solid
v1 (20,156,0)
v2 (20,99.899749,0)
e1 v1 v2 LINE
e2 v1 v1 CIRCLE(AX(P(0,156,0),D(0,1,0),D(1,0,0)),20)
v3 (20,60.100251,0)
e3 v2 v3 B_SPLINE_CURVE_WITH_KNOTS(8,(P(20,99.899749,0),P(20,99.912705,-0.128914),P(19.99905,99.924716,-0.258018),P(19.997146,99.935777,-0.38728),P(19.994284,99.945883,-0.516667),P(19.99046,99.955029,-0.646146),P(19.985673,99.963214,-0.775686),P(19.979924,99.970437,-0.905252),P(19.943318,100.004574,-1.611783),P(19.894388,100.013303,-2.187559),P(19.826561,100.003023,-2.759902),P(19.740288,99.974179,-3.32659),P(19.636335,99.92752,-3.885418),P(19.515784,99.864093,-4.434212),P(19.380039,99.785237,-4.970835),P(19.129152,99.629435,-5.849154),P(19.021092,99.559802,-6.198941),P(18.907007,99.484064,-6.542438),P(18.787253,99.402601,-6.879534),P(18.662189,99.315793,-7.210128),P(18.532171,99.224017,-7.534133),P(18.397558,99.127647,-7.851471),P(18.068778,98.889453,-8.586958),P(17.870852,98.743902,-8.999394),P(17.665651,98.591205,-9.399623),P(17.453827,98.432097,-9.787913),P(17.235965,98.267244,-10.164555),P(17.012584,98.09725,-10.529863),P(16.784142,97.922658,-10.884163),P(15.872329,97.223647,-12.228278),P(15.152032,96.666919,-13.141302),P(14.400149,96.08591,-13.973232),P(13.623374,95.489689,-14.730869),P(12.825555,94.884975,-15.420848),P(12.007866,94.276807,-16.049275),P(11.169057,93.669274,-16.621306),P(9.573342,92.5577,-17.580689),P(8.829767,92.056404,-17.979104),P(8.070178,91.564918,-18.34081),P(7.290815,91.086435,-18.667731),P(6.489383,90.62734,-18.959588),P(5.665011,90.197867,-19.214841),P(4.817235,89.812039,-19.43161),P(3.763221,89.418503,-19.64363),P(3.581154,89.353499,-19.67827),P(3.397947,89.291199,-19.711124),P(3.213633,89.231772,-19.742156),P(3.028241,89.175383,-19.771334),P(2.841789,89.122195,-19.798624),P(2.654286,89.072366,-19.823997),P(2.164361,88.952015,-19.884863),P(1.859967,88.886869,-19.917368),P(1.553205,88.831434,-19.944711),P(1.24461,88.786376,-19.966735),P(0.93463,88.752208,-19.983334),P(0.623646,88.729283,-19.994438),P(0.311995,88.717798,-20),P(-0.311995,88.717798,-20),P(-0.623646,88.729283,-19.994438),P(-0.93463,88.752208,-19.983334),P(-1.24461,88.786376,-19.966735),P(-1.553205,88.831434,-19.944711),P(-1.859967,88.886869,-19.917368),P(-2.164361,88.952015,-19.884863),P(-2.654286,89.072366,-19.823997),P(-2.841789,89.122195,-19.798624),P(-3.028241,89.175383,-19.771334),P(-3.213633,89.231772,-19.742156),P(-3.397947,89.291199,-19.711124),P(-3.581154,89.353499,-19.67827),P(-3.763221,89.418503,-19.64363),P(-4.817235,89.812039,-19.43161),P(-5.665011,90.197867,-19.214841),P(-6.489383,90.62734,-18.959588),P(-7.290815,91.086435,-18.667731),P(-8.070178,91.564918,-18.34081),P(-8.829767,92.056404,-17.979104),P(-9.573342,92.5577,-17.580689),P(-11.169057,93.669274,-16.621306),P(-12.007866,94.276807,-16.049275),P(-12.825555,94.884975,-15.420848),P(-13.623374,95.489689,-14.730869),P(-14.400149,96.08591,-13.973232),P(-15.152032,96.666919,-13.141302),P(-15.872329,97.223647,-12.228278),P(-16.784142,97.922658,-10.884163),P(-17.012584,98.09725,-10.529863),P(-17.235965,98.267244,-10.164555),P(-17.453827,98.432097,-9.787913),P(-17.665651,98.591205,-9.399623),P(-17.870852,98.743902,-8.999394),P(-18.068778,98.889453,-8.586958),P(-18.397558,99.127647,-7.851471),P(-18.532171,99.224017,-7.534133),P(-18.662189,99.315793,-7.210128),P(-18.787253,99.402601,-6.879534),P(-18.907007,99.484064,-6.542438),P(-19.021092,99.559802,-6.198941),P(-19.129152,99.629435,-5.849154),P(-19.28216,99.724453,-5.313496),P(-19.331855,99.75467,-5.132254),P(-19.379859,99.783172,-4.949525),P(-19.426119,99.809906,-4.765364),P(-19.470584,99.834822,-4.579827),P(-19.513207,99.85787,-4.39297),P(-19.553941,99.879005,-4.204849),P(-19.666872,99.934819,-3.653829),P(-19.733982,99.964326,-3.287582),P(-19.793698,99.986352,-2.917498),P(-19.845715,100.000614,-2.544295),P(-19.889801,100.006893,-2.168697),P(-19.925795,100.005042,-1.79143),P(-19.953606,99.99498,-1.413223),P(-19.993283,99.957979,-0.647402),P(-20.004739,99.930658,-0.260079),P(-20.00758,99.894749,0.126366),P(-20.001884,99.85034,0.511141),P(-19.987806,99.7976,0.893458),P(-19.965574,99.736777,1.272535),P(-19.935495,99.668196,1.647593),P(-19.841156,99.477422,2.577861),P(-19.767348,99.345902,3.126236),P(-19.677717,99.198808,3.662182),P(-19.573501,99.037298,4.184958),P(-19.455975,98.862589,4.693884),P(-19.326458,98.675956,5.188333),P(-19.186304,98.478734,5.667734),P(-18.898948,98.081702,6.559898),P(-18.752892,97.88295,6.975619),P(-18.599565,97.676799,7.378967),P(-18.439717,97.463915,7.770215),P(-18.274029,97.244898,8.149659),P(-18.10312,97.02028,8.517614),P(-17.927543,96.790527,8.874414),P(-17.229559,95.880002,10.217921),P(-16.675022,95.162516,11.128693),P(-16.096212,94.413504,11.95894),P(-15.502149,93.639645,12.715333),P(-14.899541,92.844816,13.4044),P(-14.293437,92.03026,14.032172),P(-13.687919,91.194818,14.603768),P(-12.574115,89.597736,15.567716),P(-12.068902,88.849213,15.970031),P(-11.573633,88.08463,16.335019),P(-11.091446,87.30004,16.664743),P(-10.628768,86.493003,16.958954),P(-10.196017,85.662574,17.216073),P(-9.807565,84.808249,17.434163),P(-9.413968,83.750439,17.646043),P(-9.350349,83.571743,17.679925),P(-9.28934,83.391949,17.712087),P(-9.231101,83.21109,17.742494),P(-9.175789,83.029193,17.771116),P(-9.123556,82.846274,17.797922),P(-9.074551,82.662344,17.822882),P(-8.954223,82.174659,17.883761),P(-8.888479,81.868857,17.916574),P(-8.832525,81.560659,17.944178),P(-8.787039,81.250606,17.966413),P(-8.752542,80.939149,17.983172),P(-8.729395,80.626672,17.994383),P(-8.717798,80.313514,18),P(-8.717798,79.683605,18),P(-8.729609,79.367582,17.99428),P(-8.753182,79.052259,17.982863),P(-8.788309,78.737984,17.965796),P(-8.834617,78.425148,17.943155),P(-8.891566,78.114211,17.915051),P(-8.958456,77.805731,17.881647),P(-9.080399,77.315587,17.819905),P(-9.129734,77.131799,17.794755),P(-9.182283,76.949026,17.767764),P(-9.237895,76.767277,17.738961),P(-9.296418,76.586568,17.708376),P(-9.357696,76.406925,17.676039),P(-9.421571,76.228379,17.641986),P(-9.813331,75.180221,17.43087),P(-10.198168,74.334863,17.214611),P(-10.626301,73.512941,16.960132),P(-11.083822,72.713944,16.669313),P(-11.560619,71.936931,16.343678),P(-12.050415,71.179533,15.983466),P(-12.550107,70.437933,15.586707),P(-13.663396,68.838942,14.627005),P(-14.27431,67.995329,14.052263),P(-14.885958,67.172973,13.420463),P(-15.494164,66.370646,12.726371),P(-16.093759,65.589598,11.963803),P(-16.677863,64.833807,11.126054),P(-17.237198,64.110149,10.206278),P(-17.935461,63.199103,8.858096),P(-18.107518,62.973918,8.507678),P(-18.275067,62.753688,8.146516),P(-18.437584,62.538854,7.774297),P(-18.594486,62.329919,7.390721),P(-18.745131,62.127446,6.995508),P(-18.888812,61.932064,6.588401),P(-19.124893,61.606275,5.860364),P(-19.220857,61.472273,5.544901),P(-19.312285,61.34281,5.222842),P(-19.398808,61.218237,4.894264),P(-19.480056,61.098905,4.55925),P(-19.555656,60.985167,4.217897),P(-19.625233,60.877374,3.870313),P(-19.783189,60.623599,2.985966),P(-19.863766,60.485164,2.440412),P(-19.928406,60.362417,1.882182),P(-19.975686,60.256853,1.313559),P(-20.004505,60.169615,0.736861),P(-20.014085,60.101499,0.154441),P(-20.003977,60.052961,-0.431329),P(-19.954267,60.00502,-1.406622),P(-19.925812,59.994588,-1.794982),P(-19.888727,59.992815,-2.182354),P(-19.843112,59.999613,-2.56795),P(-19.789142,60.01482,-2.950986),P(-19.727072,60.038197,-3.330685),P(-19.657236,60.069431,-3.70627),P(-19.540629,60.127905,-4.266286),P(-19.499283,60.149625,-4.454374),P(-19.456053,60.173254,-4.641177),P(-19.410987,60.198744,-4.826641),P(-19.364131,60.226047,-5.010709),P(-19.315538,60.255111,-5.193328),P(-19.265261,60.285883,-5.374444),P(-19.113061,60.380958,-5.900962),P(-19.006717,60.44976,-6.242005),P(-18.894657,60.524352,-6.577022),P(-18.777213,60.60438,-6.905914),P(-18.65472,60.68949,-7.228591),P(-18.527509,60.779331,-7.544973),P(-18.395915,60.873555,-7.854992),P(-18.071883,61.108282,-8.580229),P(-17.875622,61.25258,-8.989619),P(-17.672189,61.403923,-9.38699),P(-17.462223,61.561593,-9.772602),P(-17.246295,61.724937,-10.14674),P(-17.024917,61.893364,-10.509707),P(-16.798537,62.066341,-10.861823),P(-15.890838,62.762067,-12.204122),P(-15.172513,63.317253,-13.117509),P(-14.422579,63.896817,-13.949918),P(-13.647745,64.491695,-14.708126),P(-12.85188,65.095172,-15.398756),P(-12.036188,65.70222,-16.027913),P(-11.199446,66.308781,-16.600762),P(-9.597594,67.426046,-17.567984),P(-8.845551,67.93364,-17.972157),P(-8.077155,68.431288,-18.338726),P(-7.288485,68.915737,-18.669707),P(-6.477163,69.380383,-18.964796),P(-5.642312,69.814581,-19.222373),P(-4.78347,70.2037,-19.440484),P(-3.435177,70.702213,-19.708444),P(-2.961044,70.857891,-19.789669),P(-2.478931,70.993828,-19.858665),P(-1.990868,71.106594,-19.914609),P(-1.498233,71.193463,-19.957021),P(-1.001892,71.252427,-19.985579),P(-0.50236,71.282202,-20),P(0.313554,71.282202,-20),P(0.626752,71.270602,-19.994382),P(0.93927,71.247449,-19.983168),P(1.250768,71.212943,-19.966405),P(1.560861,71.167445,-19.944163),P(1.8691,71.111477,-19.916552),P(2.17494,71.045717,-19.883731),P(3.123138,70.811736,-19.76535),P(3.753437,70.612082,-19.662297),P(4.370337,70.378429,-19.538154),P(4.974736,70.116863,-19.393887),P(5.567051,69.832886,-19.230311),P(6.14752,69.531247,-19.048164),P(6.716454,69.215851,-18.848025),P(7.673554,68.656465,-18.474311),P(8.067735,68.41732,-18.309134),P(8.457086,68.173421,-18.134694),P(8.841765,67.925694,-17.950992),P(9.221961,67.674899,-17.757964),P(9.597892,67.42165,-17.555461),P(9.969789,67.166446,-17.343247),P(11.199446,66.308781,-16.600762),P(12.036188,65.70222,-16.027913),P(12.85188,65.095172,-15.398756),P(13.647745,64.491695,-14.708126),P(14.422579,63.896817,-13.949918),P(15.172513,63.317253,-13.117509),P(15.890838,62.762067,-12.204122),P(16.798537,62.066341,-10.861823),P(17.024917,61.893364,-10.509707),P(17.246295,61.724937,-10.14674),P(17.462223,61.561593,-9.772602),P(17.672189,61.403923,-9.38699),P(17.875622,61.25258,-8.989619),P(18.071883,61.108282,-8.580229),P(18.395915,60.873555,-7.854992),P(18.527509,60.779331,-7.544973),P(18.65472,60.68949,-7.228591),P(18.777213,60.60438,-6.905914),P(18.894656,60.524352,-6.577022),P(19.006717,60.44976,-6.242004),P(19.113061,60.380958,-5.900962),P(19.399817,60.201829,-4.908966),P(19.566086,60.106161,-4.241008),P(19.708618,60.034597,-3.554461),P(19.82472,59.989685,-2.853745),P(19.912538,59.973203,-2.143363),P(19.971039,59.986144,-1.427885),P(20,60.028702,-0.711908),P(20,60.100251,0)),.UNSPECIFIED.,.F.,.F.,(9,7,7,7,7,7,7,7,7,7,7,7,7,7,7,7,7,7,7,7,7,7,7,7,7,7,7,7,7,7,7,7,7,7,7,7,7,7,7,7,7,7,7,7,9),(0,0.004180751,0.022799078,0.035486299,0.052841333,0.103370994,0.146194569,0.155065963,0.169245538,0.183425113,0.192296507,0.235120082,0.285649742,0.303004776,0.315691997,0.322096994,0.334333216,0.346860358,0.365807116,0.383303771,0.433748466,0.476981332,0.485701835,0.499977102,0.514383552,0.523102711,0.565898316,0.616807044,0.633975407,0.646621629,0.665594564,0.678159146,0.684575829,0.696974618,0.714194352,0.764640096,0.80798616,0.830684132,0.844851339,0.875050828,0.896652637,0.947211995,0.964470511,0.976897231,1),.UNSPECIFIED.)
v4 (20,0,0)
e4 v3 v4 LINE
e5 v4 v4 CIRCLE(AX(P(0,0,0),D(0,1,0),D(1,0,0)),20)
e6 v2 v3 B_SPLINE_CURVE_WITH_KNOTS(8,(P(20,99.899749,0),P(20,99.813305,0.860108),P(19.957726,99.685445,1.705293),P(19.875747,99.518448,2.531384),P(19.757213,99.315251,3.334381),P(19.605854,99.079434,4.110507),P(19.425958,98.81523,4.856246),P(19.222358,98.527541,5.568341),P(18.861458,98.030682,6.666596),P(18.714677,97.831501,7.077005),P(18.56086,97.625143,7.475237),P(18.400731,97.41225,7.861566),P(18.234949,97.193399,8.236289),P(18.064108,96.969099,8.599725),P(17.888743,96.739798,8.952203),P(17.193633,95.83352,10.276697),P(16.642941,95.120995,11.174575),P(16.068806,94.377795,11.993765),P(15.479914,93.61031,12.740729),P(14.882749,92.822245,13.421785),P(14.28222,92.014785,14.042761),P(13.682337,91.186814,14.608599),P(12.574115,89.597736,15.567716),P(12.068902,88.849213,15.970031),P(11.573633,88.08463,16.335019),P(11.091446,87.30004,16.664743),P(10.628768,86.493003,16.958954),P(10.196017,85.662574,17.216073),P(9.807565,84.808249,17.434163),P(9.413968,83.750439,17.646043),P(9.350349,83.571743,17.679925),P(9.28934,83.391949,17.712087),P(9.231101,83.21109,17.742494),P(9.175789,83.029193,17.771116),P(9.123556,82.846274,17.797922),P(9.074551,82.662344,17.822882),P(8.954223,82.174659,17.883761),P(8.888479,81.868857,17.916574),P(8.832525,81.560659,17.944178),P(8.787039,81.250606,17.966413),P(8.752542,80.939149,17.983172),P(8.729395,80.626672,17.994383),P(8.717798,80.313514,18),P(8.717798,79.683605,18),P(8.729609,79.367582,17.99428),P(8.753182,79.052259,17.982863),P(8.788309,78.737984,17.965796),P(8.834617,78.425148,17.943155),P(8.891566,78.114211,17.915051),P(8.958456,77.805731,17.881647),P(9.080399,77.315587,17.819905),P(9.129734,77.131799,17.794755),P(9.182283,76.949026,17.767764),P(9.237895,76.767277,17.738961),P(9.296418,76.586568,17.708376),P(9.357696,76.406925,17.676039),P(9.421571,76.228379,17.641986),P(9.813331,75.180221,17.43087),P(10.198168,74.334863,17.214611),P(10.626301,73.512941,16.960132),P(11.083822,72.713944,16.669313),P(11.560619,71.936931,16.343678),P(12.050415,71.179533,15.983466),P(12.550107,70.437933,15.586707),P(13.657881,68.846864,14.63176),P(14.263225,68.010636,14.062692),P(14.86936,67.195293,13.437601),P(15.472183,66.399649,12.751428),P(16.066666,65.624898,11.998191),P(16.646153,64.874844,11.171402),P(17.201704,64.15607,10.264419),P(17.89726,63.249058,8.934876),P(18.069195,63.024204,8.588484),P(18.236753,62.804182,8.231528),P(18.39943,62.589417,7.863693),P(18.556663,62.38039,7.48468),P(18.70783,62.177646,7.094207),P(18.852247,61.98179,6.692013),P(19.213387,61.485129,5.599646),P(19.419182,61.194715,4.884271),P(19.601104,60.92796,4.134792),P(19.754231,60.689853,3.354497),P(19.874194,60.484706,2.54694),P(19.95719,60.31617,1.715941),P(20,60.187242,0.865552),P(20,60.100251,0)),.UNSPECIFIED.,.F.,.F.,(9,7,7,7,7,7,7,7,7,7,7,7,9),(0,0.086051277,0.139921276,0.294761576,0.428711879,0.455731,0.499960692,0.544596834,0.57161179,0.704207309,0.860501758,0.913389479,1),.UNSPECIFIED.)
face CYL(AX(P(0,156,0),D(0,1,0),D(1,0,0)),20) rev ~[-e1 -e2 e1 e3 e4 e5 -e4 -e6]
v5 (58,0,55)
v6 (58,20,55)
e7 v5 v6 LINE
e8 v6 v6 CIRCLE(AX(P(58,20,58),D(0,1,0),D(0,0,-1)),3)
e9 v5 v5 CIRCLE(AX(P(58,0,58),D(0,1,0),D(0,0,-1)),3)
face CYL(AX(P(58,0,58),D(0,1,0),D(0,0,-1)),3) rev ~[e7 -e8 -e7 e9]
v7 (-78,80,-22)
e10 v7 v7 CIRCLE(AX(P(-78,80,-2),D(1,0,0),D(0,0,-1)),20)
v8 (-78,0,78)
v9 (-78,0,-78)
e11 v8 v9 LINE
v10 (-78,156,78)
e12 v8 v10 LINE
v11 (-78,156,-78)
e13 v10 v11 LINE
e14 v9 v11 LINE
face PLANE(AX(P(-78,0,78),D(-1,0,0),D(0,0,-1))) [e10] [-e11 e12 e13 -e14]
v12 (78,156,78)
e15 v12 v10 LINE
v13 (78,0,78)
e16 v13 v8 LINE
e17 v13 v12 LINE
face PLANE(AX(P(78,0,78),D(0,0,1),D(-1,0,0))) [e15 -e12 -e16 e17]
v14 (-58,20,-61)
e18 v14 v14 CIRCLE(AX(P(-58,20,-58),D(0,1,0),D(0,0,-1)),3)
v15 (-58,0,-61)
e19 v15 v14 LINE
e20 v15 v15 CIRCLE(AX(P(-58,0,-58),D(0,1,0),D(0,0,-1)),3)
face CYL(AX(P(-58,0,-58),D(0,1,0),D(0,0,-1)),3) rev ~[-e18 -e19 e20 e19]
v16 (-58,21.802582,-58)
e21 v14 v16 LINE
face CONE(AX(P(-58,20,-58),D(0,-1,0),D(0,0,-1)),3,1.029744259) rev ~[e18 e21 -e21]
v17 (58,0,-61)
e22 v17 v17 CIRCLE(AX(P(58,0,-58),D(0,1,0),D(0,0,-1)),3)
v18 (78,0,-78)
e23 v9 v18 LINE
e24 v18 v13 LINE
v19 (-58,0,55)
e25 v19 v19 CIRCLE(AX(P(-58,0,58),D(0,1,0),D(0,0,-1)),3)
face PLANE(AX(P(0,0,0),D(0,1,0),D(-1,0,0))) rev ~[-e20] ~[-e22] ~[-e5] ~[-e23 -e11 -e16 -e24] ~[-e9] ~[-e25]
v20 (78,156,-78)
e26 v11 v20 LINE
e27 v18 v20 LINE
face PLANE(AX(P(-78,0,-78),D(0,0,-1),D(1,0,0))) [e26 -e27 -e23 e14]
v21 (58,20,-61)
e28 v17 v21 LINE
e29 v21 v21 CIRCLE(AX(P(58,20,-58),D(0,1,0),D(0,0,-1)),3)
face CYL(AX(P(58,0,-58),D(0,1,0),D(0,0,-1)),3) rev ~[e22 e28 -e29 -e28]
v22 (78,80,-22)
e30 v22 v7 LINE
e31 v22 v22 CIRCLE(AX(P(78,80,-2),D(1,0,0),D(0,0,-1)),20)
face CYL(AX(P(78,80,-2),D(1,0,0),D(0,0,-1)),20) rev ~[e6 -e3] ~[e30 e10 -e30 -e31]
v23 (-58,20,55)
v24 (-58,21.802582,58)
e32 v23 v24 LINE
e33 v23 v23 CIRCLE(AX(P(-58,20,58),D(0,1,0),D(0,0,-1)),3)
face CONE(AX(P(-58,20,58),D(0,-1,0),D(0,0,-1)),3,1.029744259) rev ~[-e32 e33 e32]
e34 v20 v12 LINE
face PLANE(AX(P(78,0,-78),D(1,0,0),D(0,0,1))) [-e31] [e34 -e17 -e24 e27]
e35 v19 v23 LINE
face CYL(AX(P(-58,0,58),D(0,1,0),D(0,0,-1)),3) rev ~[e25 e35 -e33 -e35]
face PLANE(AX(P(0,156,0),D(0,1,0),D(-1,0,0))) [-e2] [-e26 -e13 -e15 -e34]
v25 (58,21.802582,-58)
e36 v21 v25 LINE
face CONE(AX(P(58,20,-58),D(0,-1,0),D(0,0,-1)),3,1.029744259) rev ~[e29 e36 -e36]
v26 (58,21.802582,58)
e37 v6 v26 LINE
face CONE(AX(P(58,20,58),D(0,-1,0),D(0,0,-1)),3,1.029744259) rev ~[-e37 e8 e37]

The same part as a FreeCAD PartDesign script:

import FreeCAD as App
import Part
import Sketcher
Q = App.Units.Quantity

doc = App.newDocument("Part")
body = doc.addObject("PartDesign::Body", "Body")

sketch1 = body.newObject("Sketcher::SketchObject", "Sketch")
sketch1.AttachmentSupport = (doc.getObject("XZ_Plane"), [""])
sketch1.MapMode = "FlatFace"
sketch1.addGeometry([
    Part.LineSegment(App.Vector(-78, 78, 0), App.Vector(78, 78, 0)),
    Part.LineSegment(App.Vector(78, 78, 0), App.Vector(78, -78, 0)),
    Part.LineSegment(App.Vector(78, -78, 0), App.Vector(-78, -78, 0)),
    Part.LineSegment(App.Vector(-78, -78, 0), App.Vector(-78, 78, 0)),
], False)
sketch1.addConstraint([
    Sketcher.Constraint("Coincident", 0, 2, 1, 1),
    Sketcher.Constraint("Coincident", 1, 2, 2, 1),
    Sketcher.Constraint("Coincident", 2, 2, 3, 1),
    Sketcher.Constraint("Coincident", 3, 2, 0, 1),
    Sketcher.Constraint("Horizontal", 0),
    Sketcher.Constraint("Vertical", 1),
    Sketcher.Constraint("Horizontal", 2),
    Sketcher.Constraint("Vertical", 3),
    Sketcher.Constraint("Symmetric", 0, 2, 2, 2, -1, 1),
    Sketcher.Constraint("Equal", 2, 1),
    Sketcher.Constraint("DistanceX", 0, 1, 0, 2, Q("156 mm")),
])
pad1 = body.newObject("PartDesign::Pad", "Pad")
pad1.Profile = sketch1
pad1.Length = 156
pad1.Reversed = True

sketch2 = body.newObject("Sketcher::SketchObject", "Sketch001")
sketch2.AttachmentSupport = (doc.getObject("YZ_Plane"), [""])
sketch2.MapMode = "FlatFace"
sketch2.AttachmentOffset = App.Placement(App.Vector(0, 0, 78), App.Rotation())
sketch2.addGeometry(Part.Circle(App.Vector(80, -2, 0), App.Vector(0, 0, 1), 20), False)
sketch2.addConstraint([
    Sketcher.Constraint("Diameter", 0, Q("40 mm")),
    Sketcher.Constraint("DistanceX", -1, 1, 0, 3, Q("80 mm")),
    Sketcher.Constraint("DistanceY", 0, 3, -1, 1, Q("2 mm")),
])
pocket1 = body.newObject("PartDesign::Pocket", "Pocket")
pocket1.Profile = sketch2
pocket1.Type = "ThroughAll"

sketch3 = body.newObject("Sketcher::SketchObject", "Sketch002")
sketch3.AttachmentSupport = (doc.getObject("XZ_Plane"), [""])
sketch3.MapMode = "FlatFace"
sketch3.AttachmentOffset = App.Placement(App.Vector(0, 0, -156), App.Rotation())
sketch3.addGeometry(Part.Circle(App.Vector(0, 0, 0), App.Vector(0, 0, 1), 20), False)
sketch3.addConstraint([
    Sketcher.Constraint("Coincident", 0, 3, -1, 1),
    Sketcher.Constraint("Diameter", 0, Q("40 mm")),
])
pocket2 = body.newObject("PartDesign::Pocket", "Pocket001")
pocket2.Profile = sketch3
pocket2.Type = "ThroughAll"
pocket2.Reversed = True

sketch4 = body.newObject("Sketcher::SketchObject", "Sketch003")
sketch4.AttachmentSupport = (doc.getObject("XZ_Plane"), [""])
sketch4.MapMode = "FlatFace"
sketch4.addGeometry([
    Part.Circle(App.Vector(-58, 58, 0), App.Vector(0, 0, 1), 3),
    Part.Circle(App.Vector(-58, -58, 0), App.Vector(0, 0, 1), 3),
    Part.Circle(App.Vector(58, -58, 0), App.Vector(0, 0, 1), 3),
    Part.Circle(App.Vector(58, 58, 0), App.Vector(0, 0, 1), 3),
], False)
sketch4.addConstraint([
    Sketcher.Constraint("Equal", 0, 1),
    Sketcher.Constraint("Equal", 1, 2),
    Sketcher.Constraint("Equal", 2, 3),
    Sketcher.Constraint("Symmetric", 0, 3, 2, 3, -1, 1),
    Sketcher.Constraint("Symmetric", 1, 3, 3, 3, -1, 1),
    Sketcher.Constraint("Symmetric", 1, 3, 2, 3, -2),
    Sketcher.Constraint("Diameter", 0, Q("6 mm")),
    Sketcher.Constraint("DistanceX", 0, 3, -1, 1, Q("58 mm")),
    Sketcher.Constraint("DistanceY", -1, 1, 0, 3, Q("58 mm")),
])
doc.recompute()
hole = body.newObject("PartDesign::Hole", "Hole")
hole.Profile = sketch4
hole.ThreadType = "None"
hole.Diameter = 6
hole.DepthType = "Dimension"
hole.Depth = 20
hole.DrillPoint = "Angled"
hole.DrillPointAngle = 118

doc.recompute()
